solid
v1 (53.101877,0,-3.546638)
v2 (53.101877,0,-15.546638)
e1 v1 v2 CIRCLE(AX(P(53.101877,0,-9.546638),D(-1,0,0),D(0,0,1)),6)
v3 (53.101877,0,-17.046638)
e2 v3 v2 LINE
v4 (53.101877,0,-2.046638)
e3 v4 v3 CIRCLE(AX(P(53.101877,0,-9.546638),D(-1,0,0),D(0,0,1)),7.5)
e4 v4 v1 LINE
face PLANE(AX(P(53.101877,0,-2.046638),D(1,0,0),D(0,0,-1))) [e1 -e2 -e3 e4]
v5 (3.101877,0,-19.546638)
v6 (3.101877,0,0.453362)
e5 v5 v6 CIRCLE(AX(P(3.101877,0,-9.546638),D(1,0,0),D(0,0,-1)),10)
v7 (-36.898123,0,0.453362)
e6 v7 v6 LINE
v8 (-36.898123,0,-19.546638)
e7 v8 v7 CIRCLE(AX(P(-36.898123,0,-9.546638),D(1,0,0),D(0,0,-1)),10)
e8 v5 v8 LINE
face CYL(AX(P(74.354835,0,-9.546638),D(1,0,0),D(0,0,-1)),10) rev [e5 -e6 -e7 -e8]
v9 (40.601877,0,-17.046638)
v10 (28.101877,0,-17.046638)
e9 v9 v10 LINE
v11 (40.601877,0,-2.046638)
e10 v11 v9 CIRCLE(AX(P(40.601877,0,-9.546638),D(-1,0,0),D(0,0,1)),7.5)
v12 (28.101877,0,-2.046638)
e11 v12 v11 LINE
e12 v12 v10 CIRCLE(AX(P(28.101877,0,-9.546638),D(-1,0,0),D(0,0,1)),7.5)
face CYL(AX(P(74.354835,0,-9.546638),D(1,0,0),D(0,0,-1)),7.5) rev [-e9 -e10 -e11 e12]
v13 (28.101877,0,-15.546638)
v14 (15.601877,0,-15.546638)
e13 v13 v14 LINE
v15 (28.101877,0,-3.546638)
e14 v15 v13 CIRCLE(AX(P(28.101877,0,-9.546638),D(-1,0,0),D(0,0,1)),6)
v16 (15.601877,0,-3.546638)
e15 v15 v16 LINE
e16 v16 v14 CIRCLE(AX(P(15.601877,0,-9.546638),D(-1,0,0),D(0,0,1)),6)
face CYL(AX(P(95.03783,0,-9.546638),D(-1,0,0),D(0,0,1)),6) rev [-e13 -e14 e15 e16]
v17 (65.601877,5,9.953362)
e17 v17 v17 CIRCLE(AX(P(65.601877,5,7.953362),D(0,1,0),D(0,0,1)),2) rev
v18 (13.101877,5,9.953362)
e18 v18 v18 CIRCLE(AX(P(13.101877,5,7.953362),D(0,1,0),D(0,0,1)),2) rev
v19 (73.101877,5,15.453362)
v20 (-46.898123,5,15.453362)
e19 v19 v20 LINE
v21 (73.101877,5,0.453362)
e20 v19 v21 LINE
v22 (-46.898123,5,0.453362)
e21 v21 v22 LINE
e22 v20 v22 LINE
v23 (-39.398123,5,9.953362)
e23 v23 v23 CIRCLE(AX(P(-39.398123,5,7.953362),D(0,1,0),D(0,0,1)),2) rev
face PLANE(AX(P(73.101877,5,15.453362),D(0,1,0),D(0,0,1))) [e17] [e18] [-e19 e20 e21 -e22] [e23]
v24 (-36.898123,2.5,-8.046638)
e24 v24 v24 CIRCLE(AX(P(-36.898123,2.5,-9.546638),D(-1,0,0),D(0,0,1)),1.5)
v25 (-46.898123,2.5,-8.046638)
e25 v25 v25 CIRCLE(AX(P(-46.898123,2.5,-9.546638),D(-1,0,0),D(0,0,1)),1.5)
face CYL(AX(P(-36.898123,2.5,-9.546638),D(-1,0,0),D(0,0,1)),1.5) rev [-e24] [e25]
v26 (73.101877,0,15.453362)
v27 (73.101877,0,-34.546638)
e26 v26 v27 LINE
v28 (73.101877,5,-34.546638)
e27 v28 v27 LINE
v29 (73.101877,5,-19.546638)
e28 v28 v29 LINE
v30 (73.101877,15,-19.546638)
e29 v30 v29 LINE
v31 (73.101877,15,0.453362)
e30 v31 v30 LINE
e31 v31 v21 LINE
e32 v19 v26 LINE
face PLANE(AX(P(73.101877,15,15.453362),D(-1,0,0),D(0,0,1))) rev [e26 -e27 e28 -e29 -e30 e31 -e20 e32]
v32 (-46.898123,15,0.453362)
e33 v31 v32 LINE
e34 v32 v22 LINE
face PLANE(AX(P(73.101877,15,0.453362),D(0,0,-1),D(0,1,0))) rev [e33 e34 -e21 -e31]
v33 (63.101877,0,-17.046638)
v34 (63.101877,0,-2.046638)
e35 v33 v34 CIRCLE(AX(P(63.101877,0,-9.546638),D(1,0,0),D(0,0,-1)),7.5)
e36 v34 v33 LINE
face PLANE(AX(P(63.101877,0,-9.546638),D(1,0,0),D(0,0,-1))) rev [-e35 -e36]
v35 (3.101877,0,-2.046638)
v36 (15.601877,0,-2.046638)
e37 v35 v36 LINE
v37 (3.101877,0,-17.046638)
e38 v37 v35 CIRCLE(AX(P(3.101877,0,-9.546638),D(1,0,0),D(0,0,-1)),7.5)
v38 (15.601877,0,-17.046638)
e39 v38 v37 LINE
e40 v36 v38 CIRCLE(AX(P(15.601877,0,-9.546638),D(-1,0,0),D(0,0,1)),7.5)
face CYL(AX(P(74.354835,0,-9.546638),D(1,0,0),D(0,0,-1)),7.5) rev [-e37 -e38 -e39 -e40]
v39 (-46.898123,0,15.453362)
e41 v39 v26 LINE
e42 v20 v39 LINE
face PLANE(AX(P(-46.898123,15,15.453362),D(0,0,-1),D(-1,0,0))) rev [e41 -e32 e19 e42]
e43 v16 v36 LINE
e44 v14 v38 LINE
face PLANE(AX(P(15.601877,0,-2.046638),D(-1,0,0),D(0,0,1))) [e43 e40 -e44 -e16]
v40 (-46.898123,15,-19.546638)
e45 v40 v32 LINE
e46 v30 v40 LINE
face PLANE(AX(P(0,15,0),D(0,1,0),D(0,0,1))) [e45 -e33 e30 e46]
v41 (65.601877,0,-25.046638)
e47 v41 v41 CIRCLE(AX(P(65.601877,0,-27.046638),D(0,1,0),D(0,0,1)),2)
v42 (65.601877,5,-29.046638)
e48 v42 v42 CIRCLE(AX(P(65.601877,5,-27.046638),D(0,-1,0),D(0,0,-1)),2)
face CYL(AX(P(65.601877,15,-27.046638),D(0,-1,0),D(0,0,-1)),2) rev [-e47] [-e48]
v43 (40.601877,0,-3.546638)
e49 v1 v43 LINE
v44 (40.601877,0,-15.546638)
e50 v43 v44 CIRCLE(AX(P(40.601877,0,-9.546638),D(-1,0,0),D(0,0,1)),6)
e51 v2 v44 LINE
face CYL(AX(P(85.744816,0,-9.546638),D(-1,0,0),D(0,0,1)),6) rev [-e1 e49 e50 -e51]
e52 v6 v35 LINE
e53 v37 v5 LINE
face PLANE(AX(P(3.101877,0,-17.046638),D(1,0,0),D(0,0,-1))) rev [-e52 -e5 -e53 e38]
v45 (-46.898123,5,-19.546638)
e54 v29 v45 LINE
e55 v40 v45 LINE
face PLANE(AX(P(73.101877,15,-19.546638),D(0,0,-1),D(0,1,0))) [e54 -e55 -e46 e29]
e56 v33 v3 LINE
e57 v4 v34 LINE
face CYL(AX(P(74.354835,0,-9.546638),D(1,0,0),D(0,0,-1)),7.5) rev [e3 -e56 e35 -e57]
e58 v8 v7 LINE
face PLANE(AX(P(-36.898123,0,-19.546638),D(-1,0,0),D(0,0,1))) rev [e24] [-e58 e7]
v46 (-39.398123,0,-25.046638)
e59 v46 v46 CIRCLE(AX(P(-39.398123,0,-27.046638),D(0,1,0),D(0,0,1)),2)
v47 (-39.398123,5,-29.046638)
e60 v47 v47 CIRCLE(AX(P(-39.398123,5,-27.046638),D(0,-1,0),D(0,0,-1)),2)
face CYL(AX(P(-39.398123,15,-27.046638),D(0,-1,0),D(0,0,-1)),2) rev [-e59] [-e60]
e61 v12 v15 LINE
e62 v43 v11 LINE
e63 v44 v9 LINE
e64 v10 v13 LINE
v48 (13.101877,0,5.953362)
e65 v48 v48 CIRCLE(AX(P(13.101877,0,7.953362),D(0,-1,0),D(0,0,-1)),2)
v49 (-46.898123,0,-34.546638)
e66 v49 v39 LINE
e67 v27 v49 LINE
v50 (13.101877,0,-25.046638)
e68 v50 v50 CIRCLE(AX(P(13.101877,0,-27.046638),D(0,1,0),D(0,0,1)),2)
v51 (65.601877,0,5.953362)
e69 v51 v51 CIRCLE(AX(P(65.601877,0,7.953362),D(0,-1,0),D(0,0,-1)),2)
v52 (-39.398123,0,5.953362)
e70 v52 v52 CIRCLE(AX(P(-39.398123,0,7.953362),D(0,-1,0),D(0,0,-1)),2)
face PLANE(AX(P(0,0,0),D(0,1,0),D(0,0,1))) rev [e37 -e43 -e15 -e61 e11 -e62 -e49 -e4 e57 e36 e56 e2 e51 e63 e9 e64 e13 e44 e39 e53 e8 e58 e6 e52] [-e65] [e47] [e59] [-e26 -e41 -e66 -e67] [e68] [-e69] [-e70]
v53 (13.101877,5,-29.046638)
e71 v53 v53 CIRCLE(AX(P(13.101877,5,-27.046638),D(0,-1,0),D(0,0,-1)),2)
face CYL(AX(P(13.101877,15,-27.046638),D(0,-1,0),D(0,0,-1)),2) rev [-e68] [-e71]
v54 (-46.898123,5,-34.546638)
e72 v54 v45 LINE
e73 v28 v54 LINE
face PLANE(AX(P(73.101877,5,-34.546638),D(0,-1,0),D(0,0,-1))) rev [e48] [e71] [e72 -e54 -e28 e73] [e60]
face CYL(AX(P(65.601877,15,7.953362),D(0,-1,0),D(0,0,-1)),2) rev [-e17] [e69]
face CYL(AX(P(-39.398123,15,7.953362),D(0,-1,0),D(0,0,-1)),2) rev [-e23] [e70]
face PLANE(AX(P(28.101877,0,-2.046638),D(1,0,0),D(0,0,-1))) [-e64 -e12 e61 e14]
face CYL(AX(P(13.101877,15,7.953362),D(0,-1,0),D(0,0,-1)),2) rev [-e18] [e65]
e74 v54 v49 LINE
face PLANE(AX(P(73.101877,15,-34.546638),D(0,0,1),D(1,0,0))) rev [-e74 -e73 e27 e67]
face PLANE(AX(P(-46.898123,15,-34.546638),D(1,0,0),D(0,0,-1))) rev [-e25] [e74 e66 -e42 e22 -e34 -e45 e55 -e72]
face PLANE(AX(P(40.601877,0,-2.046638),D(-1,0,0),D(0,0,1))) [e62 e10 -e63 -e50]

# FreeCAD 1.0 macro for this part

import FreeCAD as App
import Part
import Sketcher
from FreeCAD import Vector


def add_polygon(sketch, points):
    """Adds a closed chain of lines whose ends are joined by coincident constraints."""
    first, n = sketch.GeometryCount, len(points)
    for a, b in zip(points, points[1:] + points[:1]):
        sketch.addGeometry(Part.LineSegment(App.Vector(*a, 0), App.Vector(*b, 0)), False)
    for i in range(n):
        sketch.addConstraint(Sketcher.Constraint("Coincident", first + i, 2, first + (i + 1) % n, 1))

doc = App.newDocument("Part")
body = doc.addObject("PartDesign::Body", "Body")

sketch1 = body.newObject("Sketcher::SketchObject", "Sketch")
sketch1.AttachmentSupport = (doc.getObject("XZ_Plane"), [""])
sketch1.MapMode = "FlatFace"
add_polygon(sketch1, [(-47, -35), (-47, 15), (73, 15), (73, -35)])
sketch1.addConstraint([
    Sketcher.Constraint("Vertical", 0),
    Sketcher.Constraint("Horizontal", 1),
    Sketcher.Constraint("Vertical", 2),
    Sketcher.Constraint("Horizontal", 3),
    Sketcher.Constraint("DistanceX", 1, 1, 1, 2, 120.0),
    Sketcher.Constraint("DistanceY", 0, 1, 0, 2, 50.0),
    Sketcher.Constraint("DistanceX", 0, 2, -1, 1, 46.898123),
    Sketcher.Constraint("DistanceY", -1, 1, 0, 2, 15.453362),
])
pad1 = body.newObject("PartDesign::Pad", "Pad")
pad1.Profile = sketch1
pad1.Length = 15
pad1.Reversed = True

sketch2 = body.newObject("Sketcher::SketchObject", "Sketch001")
sketch2.AttachmentSupport = (doc.getObject("YZ_Plane"), [""])
sketch2.MapMode = "FlatFace"
sketch2.AttachmentOffset = App.Placement(Vector(0, 0, -46.898123), App.Rotation())
sketch2.addGeometry(Part.Circle(Vector(2.5, -9.5, 0), Vector(0, 0, 1), 1.5), False)
sketch2.addConstraint([
    Sketcher.Constraint("Diameter", 0, 3.0),
    Sketcher.Constraint("DistanceX", -1, 1, 0, 3, 2.5),
    Sketcher.Constraint("DistanceY", 0, 3, -1, 1, 9.546638),
])
pocket1 = body.newObject("PartDesign::Pocket", "Pocket")
pocket1.Profile = sketch2
pocket1.Length = 10
pocket1.Reversed = True

sketch3 = body.newObject("Sketcher::SketchObject", "Sketch002")
sketch3.AttachmentSupport = (doc.getObject("XZ_Plane"), [""])
sketch3.MapMode = "FlatFace"
add_polygon(sketch3, [(63.1, -9.5), (63.1, -17), (3.1, -17), (3.1, -19.5), (-36.9, -19.5), (-36.9, -9.5)])
sketch3.addGeometry(Part.LineSegment(Vector(63.1, -9.5, 0), Vector(-36.9, -9.5, 0)), True)
sketch3.addConstraint([
    Sketcher.Constraint("Vertical", 0),
    Sketcher.Constraint("Horizontal", 1),
    Sketcher.Constraint("Vertical", 2),
    Sketcher.Constraint("Horizontal", 3),
    Sketcher.Constraint("Vertical", 4),
    Sketcher.Constraint("Horizontal", 5),
    Sketcher.Constraint("Horizontal", 6),
    Sketcher.Constraint("Coincident", 6, 1, 5, 2),
    Sketcher.Constraint("Vertical", 3, 2, 6, 2),
    Sketcher.Constraint("DistanceX", 1, 2, 1, 1, 60.0),
    Sketcher.Constraint("DistanceX", 3, 2, 3, 1, 40.0),
    Sketcher.Constraint("DistanceY", 4, 1, 4, 2, 10.0),
    Sketcher.Constraint("DistanceY", 0, 2, 0, 1, 7.5),
    Sketcher.Constraint("DistanceX", -1, 1, 0, 2, 63.101877),
    Sketcher.Constraint("DistanceY", 0, 2, -1, 1, 17.046638),
])
groove = body.newObject("PartDesign::Groove", "Groove")
groove.Profile = sketch3
groove.ReferenceAxis = (sketch3, ["Axis0"])
groove.Angle = 360

sketch4 = body.newObject("Sketcher::SketchObject", "Sketch003")
sketch4.AttachmentSupport = (doc.getObject("XZ_Plane"), [""])
sketch4.MapMode = "FlatFace"
add_polygon(sketch4, [(40.6, -15.5), (40.6, -17), (53.1, -17), (53.1, -15.5)])
sketch4.addGeometry(Part.LineSegment(Vector(40.6, -9.5, 0), Vector(53.1, -9.5, 0)), True)
sketch4.addConstraint([
    Sketcher.Constraint("Vertical", 0),
    Sketcher.Constraint("Horizontal", 1),
    Sketcher.Constraint("Vertical", 2),
    Sketcher.Constraint("Horizontal", 3),
    Sketcher.Constraint("Horizontal", 4),
    Sketcher.Constraint("Vertical", 3, 2, 4, 1),
    Sketcher.Constraint("Vertical", 2, 2, 4, 2),
    Sketcher.Constraint("DistanceX", 1, 1, 1, 2, 12.5),
    Sketcher.Constraint("DistanceY", 0, 2, 0, 1, 1.5),
    Sketcher.Constraint("DistanceY", 3, 2, 4, 1, 6.0),
    Sketcher.Constraint("DistanceX", -1, 1, 0, 2, 40.601877),
    Sketcher.Constraint("DistanceY", 0, 2, -1, 1, 17.046638),
])
revolution = body.newObject("PartDesign::Revolution", "Revolution")
revolution.Profile = sketch4
revolution.ReferenceAxis = (sketch4, ["Axis0"])
revolution.Angle = 180

sketch5 = body.newObject("Sketcher::SketchObject", "Sketch004")
sketch5.AttachmentSupport = (doc.getObject("XZ_Plane"), [""])
sketch5.MapMode = "FlatFace"
add_polygon(sketch5, [(15.6, -15.5), (15.6, -17), (28.1, -17), (28.1, -15.5)])
sketch5.addGeometry(Part.LineSegment(Vector(15.6, -9.5, 0), Vector(28.1, -9.5, 0)), True)
sketch5.addConstraint([
    Sketcher.Constraint("Vertical", 0),
    Sketcher.Constraint("Horizontal", 1),
    Sketcher.Constraint("Vertical", 2),
    Sketcher.Constraint("Horizontal", 3),
    Sketcher.Constraint("Horizontal", 4),
    Sketcher.Constraint("Vertical", 3, 2, 4, 1),
    Sketcher.Constraint("Vertical", 2, 2, 4, 2),
    Sketcher.Constraint("DistanceX", 1, 1, 1, 2, 12.5),
    Sketcher.Constraint("DistanceY", 0, 2, 0, 1, 1.5),
    Sketcher.Constraint("DistanceY", 3, 2, 4, 1, 6.0),
    Sketcher.Constraint("DistanceX", -1, 1, 0, 2, 15.601877),
    Sketcher.Constraint("DistanceY", 0, 2, -1, 1, 17.046638),
])
revolution2 = body.newObject("PartDesign::Revolution", "Revolution001")
revolution2.Profile = sketch5
revolution2.ReferenceAxis = (sketch5, ["Axis0"])
revolution2.Angle = 180

sketch6 = body.newObject("Sketcher::SketchObject", "Sketch005")
sketch6.AttachmentSupport = (doc.getObject("XZ_Plane"), [""])
sketch6.MapMode = "FlatFace"
sketch6.addGeometry([
    Part.Circle(Vector(-39.4, 8, 0), Vector(0, 0, 1), 2),
    Part.Circle(Vector(13.1, 8, 0), Vector(0, 0, 1), 2),
    Part.Circle(Vector(65.6, 8, 0), Vector(0, 0, 1), 2),
], False)
sketch6.addConstraint([
    Sketcher.Constraint("Equal", 0, 1),
    Sketcher.Constraint("Equal", 1, 2),
    Sketcher.Constraint("Horizontal", 0, 3, 1, 3),
    Sketcher.Constraint("Horizontal", 1, 3, 2, 3),
    Sketcher.Constraint("Diameter", 0, 4.0),
    Sketcher.Constraint("DistanceX", 0, 3, 2, 3, 105.0),
    Sketcher.Constraint("DistanceX", 0, 3, 1, 3, 52.5),
    Sketcher.Constraint("DistanceX", 0, 3, -1, 1, 39.398123),
    Sketcher.Constraint("DistanceY", -1, 1, 0, 3, 7.953362),
])
pocket2 = body.newObject("PartDesign::Pocket", "Pocket001")
pocket2.Profile = sketch6
pocket2.Type = "ThroughAll"
doc.recompute()

datumplane = body.newObject("PartDesign::Plane", "DatumPlane")
datumplane.AttachmentSupport = (doc.getObject("XY_Plane"), [""])
datumplane.MapMode = "FlatFace"
datumplane.AttachmentOffset = App.Placement(Vector(0, 0, -9.546638), App.Rotation())
mirrored = body.newObject("PartDesign::Mirrored", "Mirrored")
mirrored.Originals = [pocket2]
mirrored.MirrorPlane = (datumplane, [""])
body.Tip = mirrored

sketch7 = body.newObject("Sketcher::SketchObject", "Sketch006")
sketch7.AttachmentSupport = (doc.getObject("YZ_Plane"), [""])
sketch7.MapMode = "FlatFace"
sketch7.AttachmentOffset = App.Placement(Vector(0, 0, -46.898123), App.Rotation())
add_polygon(sketch7, [(15, 0), (5, 0), (5, 15), (15, 15)])
add_polygon(sketch7, [(15, -35), (5, -35), (5, -20), (15, -20)])
sketch7.addConstraint([
    Sketcher.Constraint("Horizontal", 0),
    Sketcher.Constraint("Vertical", 1),
    Sketcher.Constraint("Horizontal", 2),
    Sketcher.Constraint("Vertical", 3),
    Sketcher.Constraint("Horizontal", 4),
    Sketcher.Constraint("Vertical", 5),
    Sketcher.Constraint("Horizontal", 6),
    Sketcher.Constraint("Vertical", 7),
    Sketcher.Constraint("Vertical", 1, 2, 4, 2),
    Sketcher.Constraint("Vertical", 3, 2, 6, 2),
    Sketcher.Constraint("Equal", 3, 5),
    Sketcher.Constraint("DistanceX", 0, 2, 0, 1, 10.0),
    Sketcher.Constraint("DistanceY", 1, 1, 1, 2, 15.0),
    Sketcher.Constraint("DistanceX", -1, 1, 0, 2, 5.0),
    Sketcher.Constraint("DistanceY", 4, 2, 0, 2, 35.0),
    Sketcher.Constraint("DistanceY", -1, 1, 0, 2, 0.453362),
])
pocket3 = body.newObject("PartDesign::Pocket", "Pocket002")
pocket3.Profile = sketch7
pocket3.Type = "ThroughAll"
pocket3.Reversed = True

doc.recompute()
